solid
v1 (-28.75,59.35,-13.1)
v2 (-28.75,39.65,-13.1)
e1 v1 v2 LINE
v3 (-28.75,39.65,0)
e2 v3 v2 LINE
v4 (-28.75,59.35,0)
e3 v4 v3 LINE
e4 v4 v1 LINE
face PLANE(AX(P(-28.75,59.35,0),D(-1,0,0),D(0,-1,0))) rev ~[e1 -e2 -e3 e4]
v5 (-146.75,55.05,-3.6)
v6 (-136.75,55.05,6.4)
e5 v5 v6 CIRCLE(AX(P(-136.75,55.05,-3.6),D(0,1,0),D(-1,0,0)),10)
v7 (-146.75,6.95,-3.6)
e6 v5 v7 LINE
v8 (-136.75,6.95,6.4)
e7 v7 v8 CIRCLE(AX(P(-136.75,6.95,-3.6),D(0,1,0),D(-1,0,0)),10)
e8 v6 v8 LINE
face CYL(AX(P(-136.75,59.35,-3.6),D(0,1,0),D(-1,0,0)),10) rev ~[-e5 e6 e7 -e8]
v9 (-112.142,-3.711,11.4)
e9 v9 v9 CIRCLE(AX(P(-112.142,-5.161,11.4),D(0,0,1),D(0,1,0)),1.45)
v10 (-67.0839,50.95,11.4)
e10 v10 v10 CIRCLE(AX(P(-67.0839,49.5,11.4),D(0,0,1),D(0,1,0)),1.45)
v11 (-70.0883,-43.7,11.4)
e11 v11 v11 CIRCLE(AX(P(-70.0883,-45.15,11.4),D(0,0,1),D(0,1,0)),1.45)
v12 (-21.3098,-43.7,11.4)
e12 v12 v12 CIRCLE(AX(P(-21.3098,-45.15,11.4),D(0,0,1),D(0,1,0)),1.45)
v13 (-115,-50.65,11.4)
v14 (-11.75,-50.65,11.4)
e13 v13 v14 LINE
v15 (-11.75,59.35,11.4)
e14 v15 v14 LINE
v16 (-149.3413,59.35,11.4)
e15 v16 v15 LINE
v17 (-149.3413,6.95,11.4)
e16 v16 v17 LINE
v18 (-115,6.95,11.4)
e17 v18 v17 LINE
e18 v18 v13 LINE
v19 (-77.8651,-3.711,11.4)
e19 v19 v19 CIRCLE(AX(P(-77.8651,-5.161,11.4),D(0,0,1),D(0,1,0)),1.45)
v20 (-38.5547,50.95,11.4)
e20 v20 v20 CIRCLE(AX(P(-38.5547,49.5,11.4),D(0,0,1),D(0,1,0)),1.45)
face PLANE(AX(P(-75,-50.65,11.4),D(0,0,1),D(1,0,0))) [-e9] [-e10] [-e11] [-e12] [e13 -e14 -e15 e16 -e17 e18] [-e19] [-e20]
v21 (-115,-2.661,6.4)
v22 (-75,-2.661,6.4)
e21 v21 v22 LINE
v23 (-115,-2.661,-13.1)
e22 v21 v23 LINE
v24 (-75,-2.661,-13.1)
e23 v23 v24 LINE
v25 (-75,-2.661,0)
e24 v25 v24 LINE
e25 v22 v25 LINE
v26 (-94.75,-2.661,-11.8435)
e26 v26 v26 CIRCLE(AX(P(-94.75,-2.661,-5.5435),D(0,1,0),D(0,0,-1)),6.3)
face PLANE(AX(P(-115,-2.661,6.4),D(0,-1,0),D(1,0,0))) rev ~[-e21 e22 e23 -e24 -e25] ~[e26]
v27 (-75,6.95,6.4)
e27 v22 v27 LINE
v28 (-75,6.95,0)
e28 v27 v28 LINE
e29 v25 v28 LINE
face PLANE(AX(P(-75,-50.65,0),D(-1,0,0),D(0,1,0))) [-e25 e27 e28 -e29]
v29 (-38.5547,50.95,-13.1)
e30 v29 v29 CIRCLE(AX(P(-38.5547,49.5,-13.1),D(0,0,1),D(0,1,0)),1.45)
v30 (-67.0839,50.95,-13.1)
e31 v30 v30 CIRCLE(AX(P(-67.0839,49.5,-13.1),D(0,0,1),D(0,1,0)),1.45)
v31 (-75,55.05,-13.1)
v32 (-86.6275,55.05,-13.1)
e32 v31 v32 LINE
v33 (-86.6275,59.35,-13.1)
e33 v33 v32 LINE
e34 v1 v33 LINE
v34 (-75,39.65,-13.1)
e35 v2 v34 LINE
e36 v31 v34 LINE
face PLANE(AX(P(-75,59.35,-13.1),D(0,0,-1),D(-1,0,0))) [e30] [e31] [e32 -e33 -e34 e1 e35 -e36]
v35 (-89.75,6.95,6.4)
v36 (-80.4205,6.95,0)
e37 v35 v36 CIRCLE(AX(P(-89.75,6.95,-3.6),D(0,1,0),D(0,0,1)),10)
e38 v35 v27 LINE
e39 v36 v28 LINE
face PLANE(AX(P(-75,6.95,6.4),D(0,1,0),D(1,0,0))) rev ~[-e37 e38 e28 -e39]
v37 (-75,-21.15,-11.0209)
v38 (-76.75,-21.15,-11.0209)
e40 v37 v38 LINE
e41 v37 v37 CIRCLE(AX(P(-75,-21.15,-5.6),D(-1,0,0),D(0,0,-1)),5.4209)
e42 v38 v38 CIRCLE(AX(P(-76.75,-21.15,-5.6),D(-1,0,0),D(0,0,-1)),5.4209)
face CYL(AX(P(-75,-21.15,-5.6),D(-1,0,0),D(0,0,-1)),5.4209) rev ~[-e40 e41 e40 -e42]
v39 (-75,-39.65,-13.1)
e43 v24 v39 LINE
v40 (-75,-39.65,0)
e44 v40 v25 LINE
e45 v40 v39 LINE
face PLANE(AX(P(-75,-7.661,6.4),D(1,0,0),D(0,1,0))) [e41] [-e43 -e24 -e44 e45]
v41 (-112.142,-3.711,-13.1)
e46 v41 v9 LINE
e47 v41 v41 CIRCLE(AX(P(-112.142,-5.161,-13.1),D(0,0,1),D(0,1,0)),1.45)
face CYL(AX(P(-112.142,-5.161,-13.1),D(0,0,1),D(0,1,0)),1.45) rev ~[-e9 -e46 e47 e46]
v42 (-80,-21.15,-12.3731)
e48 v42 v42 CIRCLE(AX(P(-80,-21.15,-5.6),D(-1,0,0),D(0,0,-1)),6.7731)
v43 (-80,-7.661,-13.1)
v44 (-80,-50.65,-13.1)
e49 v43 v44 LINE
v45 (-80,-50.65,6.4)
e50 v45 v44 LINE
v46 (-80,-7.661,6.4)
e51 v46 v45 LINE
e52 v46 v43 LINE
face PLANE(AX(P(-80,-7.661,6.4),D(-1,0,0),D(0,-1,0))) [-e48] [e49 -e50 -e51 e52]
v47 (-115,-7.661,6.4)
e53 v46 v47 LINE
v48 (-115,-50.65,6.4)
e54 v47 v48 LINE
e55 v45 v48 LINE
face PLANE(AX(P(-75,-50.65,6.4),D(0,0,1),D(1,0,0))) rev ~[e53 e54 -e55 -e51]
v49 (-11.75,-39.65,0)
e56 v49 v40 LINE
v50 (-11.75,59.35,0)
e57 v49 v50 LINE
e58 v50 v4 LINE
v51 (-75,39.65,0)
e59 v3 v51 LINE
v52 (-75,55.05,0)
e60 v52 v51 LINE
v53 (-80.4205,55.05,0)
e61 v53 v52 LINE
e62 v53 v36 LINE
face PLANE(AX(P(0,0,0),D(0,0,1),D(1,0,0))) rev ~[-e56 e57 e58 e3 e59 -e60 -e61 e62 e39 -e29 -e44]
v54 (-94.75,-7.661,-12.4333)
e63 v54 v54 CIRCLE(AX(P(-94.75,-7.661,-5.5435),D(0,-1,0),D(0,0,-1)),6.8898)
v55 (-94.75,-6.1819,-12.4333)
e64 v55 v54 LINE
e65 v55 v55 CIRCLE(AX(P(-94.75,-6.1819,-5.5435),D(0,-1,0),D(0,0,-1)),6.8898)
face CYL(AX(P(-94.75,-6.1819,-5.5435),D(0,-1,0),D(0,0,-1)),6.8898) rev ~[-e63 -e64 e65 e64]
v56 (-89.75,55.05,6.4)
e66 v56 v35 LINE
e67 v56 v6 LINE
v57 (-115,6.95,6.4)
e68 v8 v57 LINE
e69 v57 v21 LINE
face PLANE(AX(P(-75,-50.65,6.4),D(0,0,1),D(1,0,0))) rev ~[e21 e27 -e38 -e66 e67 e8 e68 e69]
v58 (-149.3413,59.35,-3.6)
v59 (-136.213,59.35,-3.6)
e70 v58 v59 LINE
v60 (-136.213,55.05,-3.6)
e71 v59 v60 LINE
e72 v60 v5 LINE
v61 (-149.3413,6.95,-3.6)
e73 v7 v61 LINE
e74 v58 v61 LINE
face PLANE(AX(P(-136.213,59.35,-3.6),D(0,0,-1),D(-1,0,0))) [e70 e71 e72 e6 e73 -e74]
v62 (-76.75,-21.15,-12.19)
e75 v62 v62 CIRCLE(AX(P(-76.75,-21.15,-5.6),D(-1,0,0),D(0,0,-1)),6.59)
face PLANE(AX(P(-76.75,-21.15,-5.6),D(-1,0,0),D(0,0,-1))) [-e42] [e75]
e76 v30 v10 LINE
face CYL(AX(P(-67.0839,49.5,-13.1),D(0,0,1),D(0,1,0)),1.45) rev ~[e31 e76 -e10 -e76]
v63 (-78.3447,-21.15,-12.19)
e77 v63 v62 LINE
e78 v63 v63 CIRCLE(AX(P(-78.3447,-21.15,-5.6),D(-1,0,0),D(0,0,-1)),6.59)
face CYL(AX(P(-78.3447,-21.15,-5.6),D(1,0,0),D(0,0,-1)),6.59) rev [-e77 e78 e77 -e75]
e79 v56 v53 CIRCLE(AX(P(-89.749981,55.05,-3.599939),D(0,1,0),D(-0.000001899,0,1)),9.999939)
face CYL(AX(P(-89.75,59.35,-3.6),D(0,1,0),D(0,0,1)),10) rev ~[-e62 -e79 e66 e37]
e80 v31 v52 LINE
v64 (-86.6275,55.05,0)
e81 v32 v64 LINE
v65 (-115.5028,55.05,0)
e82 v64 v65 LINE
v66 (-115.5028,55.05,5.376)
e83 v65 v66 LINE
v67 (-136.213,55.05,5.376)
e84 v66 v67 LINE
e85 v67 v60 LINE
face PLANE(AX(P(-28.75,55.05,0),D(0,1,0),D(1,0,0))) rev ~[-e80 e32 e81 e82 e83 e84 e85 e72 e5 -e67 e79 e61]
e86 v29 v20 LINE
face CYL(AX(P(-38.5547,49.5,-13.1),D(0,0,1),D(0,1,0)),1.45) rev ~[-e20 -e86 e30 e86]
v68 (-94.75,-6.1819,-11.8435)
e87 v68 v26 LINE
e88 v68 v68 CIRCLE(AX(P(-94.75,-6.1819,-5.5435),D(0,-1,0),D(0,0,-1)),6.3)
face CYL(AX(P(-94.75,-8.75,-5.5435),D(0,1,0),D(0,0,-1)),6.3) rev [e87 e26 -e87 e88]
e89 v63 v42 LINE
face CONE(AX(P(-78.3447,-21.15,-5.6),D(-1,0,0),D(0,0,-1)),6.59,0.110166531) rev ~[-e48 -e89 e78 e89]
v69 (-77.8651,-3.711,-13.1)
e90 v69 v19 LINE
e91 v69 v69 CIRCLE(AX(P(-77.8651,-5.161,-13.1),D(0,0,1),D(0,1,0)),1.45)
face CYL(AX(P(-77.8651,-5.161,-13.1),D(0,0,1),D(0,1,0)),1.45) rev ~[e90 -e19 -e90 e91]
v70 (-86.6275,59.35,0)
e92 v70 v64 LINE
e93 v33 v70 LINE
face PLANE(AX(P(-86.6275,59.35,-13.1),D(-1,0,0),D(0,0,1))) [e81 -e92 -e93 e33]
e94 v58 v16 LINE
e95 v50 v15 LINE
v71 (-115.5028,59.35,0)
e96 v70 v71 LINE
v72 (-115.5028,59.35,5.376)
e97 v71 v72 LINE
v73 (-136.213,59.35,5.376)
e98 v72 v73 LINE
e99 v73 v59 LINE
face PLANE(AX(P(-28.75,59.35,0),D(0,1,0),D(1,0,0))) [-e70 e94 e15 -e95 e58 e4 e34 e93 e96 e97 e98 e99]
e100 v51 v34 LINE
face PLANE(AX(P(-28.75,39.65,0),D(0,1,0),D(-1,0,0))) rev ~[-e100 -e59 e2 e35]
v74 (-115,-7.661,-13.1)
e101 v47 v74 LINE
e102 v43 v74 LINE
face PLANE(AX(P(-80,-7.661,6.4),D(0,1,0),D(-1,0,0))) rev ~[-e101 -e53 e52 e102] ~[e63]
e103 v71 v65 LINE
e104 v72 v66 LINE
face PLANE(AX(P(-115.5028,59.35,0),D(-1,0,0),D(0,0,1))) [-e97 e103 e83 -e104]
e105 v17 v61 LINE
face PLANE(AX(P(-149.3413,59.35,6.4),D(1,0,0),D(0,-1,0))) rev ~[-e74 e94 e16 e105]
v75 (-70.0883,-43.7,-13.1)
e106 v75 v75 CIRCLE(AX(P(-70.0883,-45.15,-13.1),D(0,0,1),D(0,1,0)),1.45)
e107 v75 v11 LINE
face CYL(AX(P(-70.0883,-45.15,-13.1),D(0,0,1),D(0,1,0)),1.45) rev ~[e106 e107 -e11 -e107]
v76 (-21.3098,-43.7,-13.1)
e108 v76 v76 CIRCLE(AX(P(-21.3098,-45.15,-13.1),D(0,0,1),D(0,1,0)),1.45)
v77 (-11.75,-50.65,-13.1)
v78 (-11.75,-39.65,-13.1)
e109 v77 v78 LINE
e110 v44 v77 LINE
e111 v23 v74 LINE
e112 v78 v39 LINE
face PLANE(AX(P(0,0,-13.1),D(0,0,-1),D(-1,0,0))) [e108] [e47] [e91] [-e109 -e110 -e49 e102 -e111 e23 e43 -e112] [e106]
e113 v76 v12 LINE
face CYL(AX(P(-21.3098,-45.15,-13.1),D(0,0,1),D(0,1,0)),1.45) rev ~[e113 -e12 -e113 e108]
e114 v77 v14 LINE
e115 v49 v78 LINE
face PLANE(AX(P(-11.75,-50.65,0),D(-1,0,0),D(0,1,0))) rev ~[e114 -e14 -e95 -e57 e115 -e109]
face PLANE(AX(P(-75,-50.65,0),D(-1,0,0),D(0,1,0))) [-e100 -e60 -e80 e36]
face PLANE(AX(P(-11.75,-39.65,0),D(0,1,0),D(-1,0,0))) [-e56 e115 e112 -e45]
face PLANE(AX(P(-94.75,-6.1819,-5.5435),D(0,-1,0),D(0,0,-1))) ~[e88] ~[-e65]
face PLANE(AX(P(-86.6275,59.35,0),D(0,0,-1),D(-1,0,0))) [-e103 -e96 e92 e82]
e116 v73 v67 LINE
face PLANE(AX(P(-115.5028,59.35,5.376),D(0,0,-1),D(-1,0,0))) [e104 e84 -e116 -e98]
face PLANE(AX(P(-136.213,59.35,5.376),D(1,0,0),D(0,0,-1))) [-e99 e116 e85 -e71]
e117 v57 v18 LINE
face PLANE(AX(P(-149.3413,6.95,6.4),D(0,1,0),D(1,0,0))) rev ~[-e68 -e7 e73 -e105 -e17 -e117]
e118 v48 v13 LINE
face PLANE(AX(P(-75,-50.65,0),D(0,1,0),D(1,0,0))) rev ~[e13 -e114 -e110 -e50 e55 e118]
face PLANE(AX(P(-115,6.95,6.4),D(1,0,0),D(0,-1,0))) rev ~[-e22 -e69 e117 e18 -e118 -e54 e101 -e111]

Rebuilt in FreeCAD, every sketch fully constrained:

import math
import FreeCAD as App
import Part
import Sketcher


def add_polygon(sketch, points):
    """Adds a closed chain of lines whose ends are joined by coincident constraints."""
    first, n = sketch.GeometryCount, len(points)
    for a, b in zip(points, points[1:] + points[:1]):
        sketch.addGeometry(Part.LineSegment(App.Vector(*a, 0), App.Vector(*b, 0)), False)
    for i in range(n):
        sketch.addConstraint(Sketcher.Constraint("Coincident", first + i, 2, first + (i + 1) % n, 1))

doc = App.newDocument("Part")
body = doc.addObject("PartDesign::Body", "Body")
body.AllowCompound = True

sketch1 = body.newObject("Sketcher::SketchObject", "Sketch")
sketch1.AttachmentSupport = (doc.getObject("XY_Plane"), [""])
sketch1.MapMode = "FlatFace"
add_polygon(sketch1, [(-75, 59), (-75, -51), (-12, -51), (-12, 59)])
sketch1.addConstraint([
    Sketcher.Constraint("Vertical", 0),
    Sketcher.Constraint("Horizontal", 1),
    Sketcher.Constraint("Vertical", 2),
    Sketcher.Constraint("Horizontal", 3),
    Sketcher.Constraint("DistanceY", 0, 2, 0, 1, 110.0),
    Sketcher.Constraint("DistanceX", 0, 2, -1, 1, 75.0),
    Sketcher.Constraint("DistanceX", 1, 1, 1, 2, 63.25),
    Sketcher.Constraint("DistanceY", 0, 2, -1, 1, 50.65),
])
pad1 = body.newObject("PartDesign::Pad", "Pad")
pad1.Profile = sketch1
pad1.Length = 6.4

sketch2 = body.newObject("Sketcher::SketchObject", "Sketch001")
sketch2.AttachmentSupport = (doc.getObject("XY_Plane"), [""])
sketch2.MapMode = "FlatFace"
add_polygon(sketch2, [(-12, -40), (-12, -51), (-75, -51), (-75, -40)])
add_polygon(sketch2, [(-75, 59), (-29, 59), (-29, 40), (-75, 40)])
sketch2.addConstraint([
    Sketcher.Constraint("Vertical", 0),
    Sketcher.Constraint("Horizontal", 1),
    Sketcher.Constraint("Vertical", 2),
    Sketcher.Constraint("Horizontal", 3),
    Sketcher.Constraint("Horizontal", 4),
    Sketcher.Constraint("Vertical", 5),
    Sketcher.Constraint("Horizontal", 6),
    Sketcher.Constraint("Vertical", 7),
    Sketcher.Constraint("Symmetric", 2, 2, 6, 2, -1),
    Sketcher.Constraint("DistanceX", 4, 2, 3, 2, 17.0),
    Sketcher.Constraint("DistanceY", 0, 2, 0, 1, 11.0),
    Sketcher.Constraint("DistanceY", 5, 2, 5, 1, 19.7),
    Sketcher.Constraint("DistanceX", 1, 2, -1, 1, 75.0),
    Sketcher.Constraint("DistanceY", 3, 2, 4, 2, 99.0),
    Sketcher.Constraint("DistanceX", 1, 2, 1, 1, 63.25),
])
pad2 = body.newObject("PartDesign::Pad", "Pad001")
pad2.Profile = sketch2
pad2.Length = 13.1
pad2.Reversed = True

sketch3 = body.newObject("Sketcher::SketchObject", "Sketch002")
sketch3.AttachmentSupport = (doc.getObject("XZ_Plane"), [""])
sketch3.MapMode = "FlatFace"
sketch3.AttachmentOffset = App.Placement(App.Vector(0, 0, -59.35), App.Rotation())
sketch3.addGeometry([
    Part.ArcOfCircle(Part.Circle(App.Vector(-89.8, -3.6, 0), App.Vector(0, 0, 1), 10), math.radians(21), math.radians(90)),
    Part.LineSegment(App.Vector(-89.8, 6.4, 0), App.Vector(-75, 6.4, 0)),
    Part.LineSegment(App.Vector(-75, 6.4, 0), App.Vector(-75, 0, 0)),
    Part.LineSegment(App.Vector(-75, 0, 0), App.Vector(-80.4, 0, 0)),
    Part.ArcOfCircle(Part.Circle(App.Vector(-136.8, -3.6, 0), App.Vector(0, 0, 1), 10), math.radians(90), math.radians(180)),
    Part.LineSegment(App.Vector(-146.8, -3.6, 0), App.Vector(-149.3, -3.6, 0)),
    Part.LineSegment(App.Vector(-149.3, -3.6, 0), App.Vector(-149.3, 6.4, 0)),
    Part.LineSegment(App.Vector(-149.3, 6.4, 0), App.Vector(-136.8, 6.4, 0)),
], False)
sketch3.addConstraint([
    Sketcher.Constraint("Tangent", 0, 2, 1, 1),
    Sketcher.Constraint("Coincident", 1, 2, 2, 1),
    Sketcher.Constraint("Coincident", 2, 2, 3, 1),
    Sketcher.Constraint("Coincident", 3, 2, 0, 1),
    Sketcher.Constraint("Coincident", 4, 2, 5, 1),
    Sketcher.Constraint("Coincident", 5, 2, 6, 1),
    Sketcher.Constraint("Coincident", 6, 2, 7, 1),
    Sketcher.Constraint("Tangent", 7, 2, 4, 1),
    Sketcher.Constraint("Horizontal", 1),
    Sketcher.Constraint("Vertical", 2),
    Sketcher.Constraint("Horizontal", 3),
    Sketcher.Constraint("Horizontal", 5),
    Sketcher.Constraint("Vertical", 6),
    Sketcher.Constraint("Horizontal", 7),
    Sketcher.Constraint("Equal", 0, 4),
    Sketcher.Constraint("PointOnObject", 2, 2, -1),
    Sketcher.Constraint("Horizontal", 0, 3, 4, 3),
    Sketcher.Constraint("Horizontal", 0, 3, 4, 2),
    Sketcher.Constraint("Radius", 0, 10.0),
    Sketcher.Constraint("DistanceY", 2, 2, 2, 1, 6.4),
    Sketcher.Constraint("DistanceX", 1, 2, -1, 1, 75.0),
    Sketcher.Constraint("DistanceX", 4, 3, 0, 3, 47.0),
    Sketcher.Constraint("DistanceX", 1, 1, 1, 2, 14.75),
    Sketcher.Constraint("DistanceX", 5, 2, 5, 1, 2.5913),
])
pad3 = body.newObject("PartDesign::Pad", "Pad002")
pad3.Profile = sketch3
pad3.Length = 52.4

sketch4 = body.newObject("Sketcher::SketchObject", "Sketch003")
sketch4.AttachmentSupport = (doc.getObject("XY_Plane"), [""])
sketch4.MapMode = "FlatFace"
sketch4.AttachmentOffset = App.Placement(App.Vector(0, 0, 6.4), App.Rotation())
add_polygon(sketch4, [(-149, 59), (-149, 7), (-115, 7), (-115, -51), (-12, -51), (-12, 59)])
sketch4.addConstraint([
    Sketcher.Constraint("Vertical", 0),
    Sketcher.Constraint("Horizontal", 1),
    Sketcher.Constraint("Vertical", 2),
    Sketcher.Constraint("Horizontal", 3),
    Sketcher.Constraint("Vertical", 4),
    Sketcher.Constraint("Horizontal", 5),
    Sketcher.Constraint("DistanceY", 4, 1, 4, 2, 110.0),
    Sketcher.Constraint("DistanceY", 0, 2, 0, 1, 52.4),
    Sketcher.Constraint("DistanceX", 1, 2, -1, 1, 115.0),
    Sketcher.Constraint("DistanceX", 3, 1, 3, 2, 103.25),
    Sketcher.Constraint("DistanceY", -1, 1, 0, 2, 6.95),
    Sketcher.Constraint("DistanceX", 1, 1, 1, 2, 34.3413),
])
pad4 = body.newObject("PartDesign::Pad", "Pad003")
pad4.Profile = sketch4
pad4.Length = 5

sketch5 = body.newObject("Sketcher::SketchObject", "Sketch004")
sketch5.AttachmentSupport = (doc.getObject("XZ_Plane"), [""])
sketch5.MapMode = "FlatFace"
sketch5.AttachmentOffset = App.Placement(App.Vector(0, 0, -59.35), App.Rotation())
sketch5.addGeometry([
    Part.LineSegment(App.Vector(-75, 0, 0), App.Vector(-75, -13, 0)),
    Part.LineSegment(App.Vector(-75, -13, 0), App.Vector(-87, -13, 0)),
    Part.LineSegment(App.Vector(-87, -13, 0), App.Vector(-87, 0, 0)),
    Part.LineSegment(App.Vector(-87, 0, 0), App.Vector(-116, 0, 0)),
    Part.LineSegment(App.Vector(-116, 0, 0), App.Vector(-116, 5, 0)),
    Part.LineSegment(App.Vector(-116, 5, 0), App.Vector(-136, 5, 0)),
    Part.LineSegment(App.Vector(-136, 5, 0), App.Vector(-136, -4, 0)),
    Part.LineSegment(App.Vector(-136, -4, 0), App.Vector(-147, -4, 0)),
    Part.ArcOfCircle(Part.Circle(App.Vector(-137, -4, 0), App.Vector(0, 0, 1), 10), math.radians(90), math.radians(180)),
    Part.LineSegment(App.Vector(-137, 6, 0), App.Vector(-90, 6, 0)),
    Part.ArcOfCircle(Part.Circle(App.Vector(-90, -4, 0), App.Vector(0, 0, 1), 10), math.radians(21), math.radians(90)),
    Part.LineSegment(App.Vector(-80, 0, 0), App.Vector(-75, 0, 0)),
], False)
sketch5.addConstraint([
    Sketcher.Constraint("Coincident", 0, 2, 1, 1),
    Sketcher.Constraint("Coincident", 1, 2, 2, 1),
    Sketcher.Constraint("Coincident", 2, 2, 3, 1),
    Sketcher.Constraint("Coincident", 3, 2, 4, 1),
    Sketcher.Constraint("Coincident", 4, 2, 5, 1),
    Sketcher.Constraint("Coincident", 5, 2, 6, 1),
    Sketcher.Constraint("Coincident", 6, 2, 7, 1),
    Sketcher.Constraint("Coincident", 7, 2, 8, 2),
    Sketcher.Constraint("Tangent", 8, 1, 9, 1),
    Sketcher.Constraint("Tangent", 9, 2, 10, 2),
    Sketcher.Constraint("Coincident", 10, 1, 11, 1),
    Sketcher.Constraint("Coincident", 11, 2, 0, 1),
    Sketcher.Constraint("Vertical", 0),
    Sketcher.Constraint("Horizontal", 1),
    Sketcher.Constraint("Vertical", 2),
    Sketcher.Constraint("Horizontal", 3),
    Sketcher.Constraint("Vertical", 4),
    Sketcher.Constraint("Horizontal", 5),
    Sketcher.Constraint("Vertical", 6),
    Sketcher.Constraint("Horizontal", 7),
    Sketcher.Constraint("Horizontal", 9),
    Sketcher.Constraint("Horizontal", 11),
    Sketcher.Constraint("Equal", 8, 10),
    Sketcher.Constraint("PointOnObject", 2, 2, -1),
    Sketcher.Constraint("PointOnObject", 10, 1, -1),
    Sketcher.Constraint("Horizontal", 10, 3, 6, 2),
    Sketcher.Constraint("Radius", 8, 10.0),
    Sketcher.Constraint("DistanceX", 9, 1, 9, 2, 47.0),
    Sketcher.Constraint("DistanceY", 0, 2, 0, 1, 13.1),
    Sketcher.Constraint("DistanceX", 0, 2, -1, 1, 75.0),
    Sketcher.Constraint("DistanceY", 8, 3, -1, 1, 3.6),
    Sketcher.Constraint("DistanceX", 7, 2, 7, 1, 10.537),
    Sketcher.Constraint("DistanceY", 4, 1, 4, 2, 5.376),
    Sketcher.Constraint("DistanceX", 8, 3, -1, 1, 136.75),
    Sketcher.Constraint("DistanceX", 1, 2, 1, 1, 11.6275),
    Sketcher.Constraint("DistanceX", 3, 2, 3, 1, 28.8753),
])
pad5 = body.newObject("PartDesign::Pad", "Pad004")
pad5.Profile = sketch5
pad5.Length = 4.3

sketch6 = body.newObject("Sketcher::SketchObject", "Sketch005")
sketch6.AttachmentSupport = (doc.getObject("XY_Plane"), [""])
sketch6.MapMode = "FlatFace"
sketch6.AttachmentOffset = App.Placement(App.Vector(0, 0, 6.4), App.Rotation())
add_polygon(sketch6, [(-115, -8), (-115, -3), (-75, -3), (-75, -51), (-80, -51), (-80, -8)])
sketch6.addConstraint([
    Sketcher.Constraint("Vertical", 0),
    Sketcher.Constraint("Horizontal", 1),
    Sketcher.Constraint("Vertical", 2),
    Sketcher.Constraint("Horizontal", 3),
    Sketcher.Constraint("Vertical", 4),
    Sketcher.Constraint("Horizontal", 5),
    Sketcher.Constraint("Equal", 3, 0),
    Sketcher.Constraint("DistanceX", 3, 2, 3, 1, 5.0),
    Sketcher.Constraint("DistanceX", 1, 1, 1, 2, 40.0),
    Sketcher.Constraint("DistanceX", 0, 2, -1, 1, 115.0),
    Sketcher.Constraint("DistanceY", 2, 2, 2, 1, 47.989),
    Sketcher.Constraint("DistanceY", 2, 2, -1, 1, 50.65),
])
pad6 = body.newObject("PartDesign::Pad", "Pad005")
pad6.Profile = sketch6
pad6.Length = 19.5
pad6.Reversed = True

sketch7 = body.newObject("Sketcher::SketchObject", "Sketch006")
sketch7.AttachmentSupport = (doc.getObject("YZ_Plane"), [""])
sketch7.MapMode = "FlatFace"
sketch7.AttachmentOffset = App.Placement(App.Vector(0, 0, -94.75), App.Rotation())
add_polygon(sketch7, [(-0.8, -11.8), (-0.8, -5.5), (-8.8, -5.5), (-8.8, -11.8), (-7.7, -11.8), (-7.7, -12.4), (-6.2, -12.4), (-6.2, -11.8)])
sketch7.addGeometry(Part.LineSegment(App.Vector(-0.8, -5.5, 0), App.Vector(-8.8, -5.5, 0)), True)
sketch7.addConstraint([
    Sketcher.Constraint("Vertical", 0),
    Sketcher.Constraint("Horizontal", 1),
    Sketcher.Constraint("Vertical", 2),
    Sketcher.Constraint("Horizontal", 3),
    Sketcher.Constraint("Vertical", 4),
    Sketcher.Constraint("Horizontal", 5),
    Sketcher.Constraint("Vertical", 6),
    Sketcher.Constraint("Horizontal", 7),
    Sketcher.Constraint("Horizontal", 8),
    Sketcher.Constraint("Coincident", 8, 1, 0, 2),
    Sketcher.Constraint("Horizontal", 3, 2, 6, 2),
    Sketcher.Constraint("Vertical", 2, 2, 8, 2),
    Sketcher.Constraint("DistanceX", 1, 2, 1, 1, 8.0),
    Sketcher.Constraint("DistanceY", 0, 1, 0, 2, 6.3),
    Sketcher.Constraint("DistanceX", 3, 1, 3, 2, 1.089),
    Sketcher.Constraint("DistanceX", 5, 1, 5, 2, 1.479),
    Sketcher.Constraint("DistanceX", 0, 2, -1, 1, 0.75),
    Sketcher.Constraint("DistanceY", 4, 2, 4, 1, 0.5898),
    Sketcher.Constraint("DistanceY", 0, 2, -1, 1, 5.5435),
])
groove = body.newObject("PartDesign::Groove", "Groove")
groove.Profile = sketch7
groove.ReferenceAxis = (sketch7, ["Axis0"])
groove.Angle = 360

sketch8 = body.newObject("Sketcher::SketchObject", "Sketch007")
sketch8.AttachmentSupport = (doc.getObject("XZ_Plane"), [""])
sketch8.MapMode = "FlatFace"
sketch8.AttachmentOffset = App.Placement(App.Vector(0, 0, 21.15), App.Rotation())
sketch8.addGeometry([
    Part.ArcOfCircle(Part.Circle(App.Vector(-65.3, -4.6, 0), App.Vector(0, 0, 1), 15.1), math.radians(-176.28), math.radians(-167.07)),
    Part.LineSegment(App.Vector(-80, -8, 0), App.Vector(-80, -12.4, 0)),
    Part.LineSegment(App.Vector(-80, -12.4, 0), App.Vector(-78.3, -12.2, 0)),
    Part.LineSegment(App.Vector(-78.3, -12.2, 0), App.Vector(-76.8, -12.2, 0)),
    Part.LineSegment(App.Vector(-76.8, -12.2, 0), App.Vector(-76.8, -11, 0)),
    Part.LineSegment(App.Vector(-76.8, -11, 0), App.Vector(-75, -11, 0)),
    Part.LineSegment(App.Vector(-75, -11, 0), App.Vector(-75, -5.6, 0)),
    Part.LineSegment(App.Vector(-75, -5.6, 0), App.Vector(-80.4, -5.6, 0)),
], False)
sketch8.addGeometry(Part.LineSegment(App.Vector(-65.3, -5.6, 0), App.Vector(-80.4, -5.6, 0)), True)
sketch8.addConstraint([
    Sketcher.Constraint("Coincident", 0, 2, 1, 1),
    Sketcher.Constraint("Coincident", 1, 2, 2, 1),
    Sketcher.Constraint("Coincident", 2, 2, 3, 1),
    Sketcher.Constraint("Coincident", 3, 2, 4, 1),
    Sketcher.Constraint("Coincident", 4, 2, 5, 1),
    Sketcher.Constraint("Coincident", 5, 2, 6, 1),
    Sketcher.Constraint("Coincident", 6, 2, 7, 1),
    Sketcher.Constraint("Coincident", 7, 2, 0, 1),
    Sketcher.Constraint("Vertical", 1),
    Sketcher.Constraint("Horizontal", 3),
    Sketcher.Constraint("Vertical", 4),
    Sketcher.Constraint("Horizontal", 5),
    Sketcher.Constraint("Vertical", 6),
    Sketcher.Constraint("Horizontal", 7),
    Sketcher.Constraint("Horizontal", 8),
    Sketcher.Constraint("Coincident", 8, 2, 7, 2),
    Sketcher.Constraint("Vertical", 0, 3, 8, 1),
    Sketcher.Constraint("DistanceX", 0, 2, -1, 1, 80.0),
    Sketcher.Constraint("DistanceX", 5, 2, -1, 1, 75.0),
    Sketcher.Constraint("DistanceX", 5, 1, 5, 2, 1.75),
    Sketcher.Constraint("DistanceY", 6, 2, -1, 1, 5.6),
    Sketcher.Constraint("Radius", 0, 15.0698),
    Sketcher.Constraint("DistanceX", 8, 2, 8, 1, 15.038),
    Sketcher.Constraint("DistanceY", 4, 1, 4, 2, 1.169),
    Sketcher.Constraint("DistanceY", 6, 1, 6, 2, 5.421),
    Sketcher.Constraint("DistanceY", 1, 2, 0, 3, 7.75),
    Sketcher.Constraint("DistanceX", 3, 1, 3, 2, 1.5947),
    Sketcher.Constraint("DistanceX", 7, 2, 7, 1, 5.3505),
])
groove2 = body.newObject("PartDesign::Groove", "Groove001")
groove2.Profile = sketch8
groove2.ReferenceAxis = (sketch8, ["Axis0"])
groove2.Angle = 360

sketch9 = body.newObject("Sketcher::SketchObject", "Sketch008")
sketch9.AttachmentSupport = (doc.getObject("XY_Plane"), [""])
sketch9.MapMode = "FlatFace"
sketch9.AttachmentOffset = App.Placement(App.Vector(0, 0, -13.1), App.Rotation())
sketch9.addGeometry([
    Part.Circle(App.Vector(-38.6, 49.5, 0), App.Vector(0, 0, 1), 1.4),
    Part.Circle(App.Vector(-67.1, 49.5, 0), App.Vector(0, 0, 1), 1.4),
    Part.Circle(App.Vector(-21.3, -45.1, 0), App.Vector(0, 0, 1), 1.4),
    Part.Circle(App.Vector(-70.1, -45.1, 0), App.Vector(0, 0, 1), 1.4),
    Part.Circle(App.Vector(-77.9, -5.2, 0), App.Vector(0, 0, 1), 1.4),
    Part.Circle(App.Vector(-112.1, -5.2, 0), App.Vector(0, 0, 1), 1.4),
], False)
sketch9.addConstraint([
    Sketcher.Constraint("Equal", 0, 1),
    Sketcher.Constraint("Equal", 1, 2),
    Sketcher.Constraint("Equal", 2, 3),
    Sketcher.Constraint("Equal", 3, 4),
    Sketcher.Constraint("Equal", 4, 5),
    Sketcher.Constraint("Horizontal", 0, 3, 1, 3),
    Sketcher.Constraint("Horizontal", 2, 3, 3, 3),
    Sketcher.Constraint("Horizontal", 4, 3, 5, 3),
    Sketcher.Constraint("Diameter", 0, 2.9),
    Sketcher.Constraint("DistanceY", -1, 1, 0, 3, 49.5),
    Sketcher.Constraint("DistanceY", 2, 3, -1, 1, 45.15),
    Sketcher.Constraint("DistanceX", 1, 3, -1, 1, 67.084),
    Sketcher.Constraint("DistanceX", 4, 3, -1, 1, 77.865),
    Sketcher.Constraint("DistanceY", 4, 3, -1, 1, 5.161),
    Sketcher.Constraint("DistanceX", 5, 3, -1, 1, 112.142),
    Sketcher.Constraint("DistanceX", 0, 3, 2, 3, 17.245),
    Sketcher.Constraint("DistanceX", 1, 3, 2, 3, 45.774),
    Sketcher.Constraint("DistanceX", 3, 3, -1, 1, 70.0883),
])
doc.recompute()
hole = body.newObject("PartDesign::Hole", "Hole")
hole.Profile = sketch9
hole.ThreadType = "None"
hole.Diameter = 2.9
hole.DepthType = "ThroughAll"
hole.Reversed = True

doc.recompute()
